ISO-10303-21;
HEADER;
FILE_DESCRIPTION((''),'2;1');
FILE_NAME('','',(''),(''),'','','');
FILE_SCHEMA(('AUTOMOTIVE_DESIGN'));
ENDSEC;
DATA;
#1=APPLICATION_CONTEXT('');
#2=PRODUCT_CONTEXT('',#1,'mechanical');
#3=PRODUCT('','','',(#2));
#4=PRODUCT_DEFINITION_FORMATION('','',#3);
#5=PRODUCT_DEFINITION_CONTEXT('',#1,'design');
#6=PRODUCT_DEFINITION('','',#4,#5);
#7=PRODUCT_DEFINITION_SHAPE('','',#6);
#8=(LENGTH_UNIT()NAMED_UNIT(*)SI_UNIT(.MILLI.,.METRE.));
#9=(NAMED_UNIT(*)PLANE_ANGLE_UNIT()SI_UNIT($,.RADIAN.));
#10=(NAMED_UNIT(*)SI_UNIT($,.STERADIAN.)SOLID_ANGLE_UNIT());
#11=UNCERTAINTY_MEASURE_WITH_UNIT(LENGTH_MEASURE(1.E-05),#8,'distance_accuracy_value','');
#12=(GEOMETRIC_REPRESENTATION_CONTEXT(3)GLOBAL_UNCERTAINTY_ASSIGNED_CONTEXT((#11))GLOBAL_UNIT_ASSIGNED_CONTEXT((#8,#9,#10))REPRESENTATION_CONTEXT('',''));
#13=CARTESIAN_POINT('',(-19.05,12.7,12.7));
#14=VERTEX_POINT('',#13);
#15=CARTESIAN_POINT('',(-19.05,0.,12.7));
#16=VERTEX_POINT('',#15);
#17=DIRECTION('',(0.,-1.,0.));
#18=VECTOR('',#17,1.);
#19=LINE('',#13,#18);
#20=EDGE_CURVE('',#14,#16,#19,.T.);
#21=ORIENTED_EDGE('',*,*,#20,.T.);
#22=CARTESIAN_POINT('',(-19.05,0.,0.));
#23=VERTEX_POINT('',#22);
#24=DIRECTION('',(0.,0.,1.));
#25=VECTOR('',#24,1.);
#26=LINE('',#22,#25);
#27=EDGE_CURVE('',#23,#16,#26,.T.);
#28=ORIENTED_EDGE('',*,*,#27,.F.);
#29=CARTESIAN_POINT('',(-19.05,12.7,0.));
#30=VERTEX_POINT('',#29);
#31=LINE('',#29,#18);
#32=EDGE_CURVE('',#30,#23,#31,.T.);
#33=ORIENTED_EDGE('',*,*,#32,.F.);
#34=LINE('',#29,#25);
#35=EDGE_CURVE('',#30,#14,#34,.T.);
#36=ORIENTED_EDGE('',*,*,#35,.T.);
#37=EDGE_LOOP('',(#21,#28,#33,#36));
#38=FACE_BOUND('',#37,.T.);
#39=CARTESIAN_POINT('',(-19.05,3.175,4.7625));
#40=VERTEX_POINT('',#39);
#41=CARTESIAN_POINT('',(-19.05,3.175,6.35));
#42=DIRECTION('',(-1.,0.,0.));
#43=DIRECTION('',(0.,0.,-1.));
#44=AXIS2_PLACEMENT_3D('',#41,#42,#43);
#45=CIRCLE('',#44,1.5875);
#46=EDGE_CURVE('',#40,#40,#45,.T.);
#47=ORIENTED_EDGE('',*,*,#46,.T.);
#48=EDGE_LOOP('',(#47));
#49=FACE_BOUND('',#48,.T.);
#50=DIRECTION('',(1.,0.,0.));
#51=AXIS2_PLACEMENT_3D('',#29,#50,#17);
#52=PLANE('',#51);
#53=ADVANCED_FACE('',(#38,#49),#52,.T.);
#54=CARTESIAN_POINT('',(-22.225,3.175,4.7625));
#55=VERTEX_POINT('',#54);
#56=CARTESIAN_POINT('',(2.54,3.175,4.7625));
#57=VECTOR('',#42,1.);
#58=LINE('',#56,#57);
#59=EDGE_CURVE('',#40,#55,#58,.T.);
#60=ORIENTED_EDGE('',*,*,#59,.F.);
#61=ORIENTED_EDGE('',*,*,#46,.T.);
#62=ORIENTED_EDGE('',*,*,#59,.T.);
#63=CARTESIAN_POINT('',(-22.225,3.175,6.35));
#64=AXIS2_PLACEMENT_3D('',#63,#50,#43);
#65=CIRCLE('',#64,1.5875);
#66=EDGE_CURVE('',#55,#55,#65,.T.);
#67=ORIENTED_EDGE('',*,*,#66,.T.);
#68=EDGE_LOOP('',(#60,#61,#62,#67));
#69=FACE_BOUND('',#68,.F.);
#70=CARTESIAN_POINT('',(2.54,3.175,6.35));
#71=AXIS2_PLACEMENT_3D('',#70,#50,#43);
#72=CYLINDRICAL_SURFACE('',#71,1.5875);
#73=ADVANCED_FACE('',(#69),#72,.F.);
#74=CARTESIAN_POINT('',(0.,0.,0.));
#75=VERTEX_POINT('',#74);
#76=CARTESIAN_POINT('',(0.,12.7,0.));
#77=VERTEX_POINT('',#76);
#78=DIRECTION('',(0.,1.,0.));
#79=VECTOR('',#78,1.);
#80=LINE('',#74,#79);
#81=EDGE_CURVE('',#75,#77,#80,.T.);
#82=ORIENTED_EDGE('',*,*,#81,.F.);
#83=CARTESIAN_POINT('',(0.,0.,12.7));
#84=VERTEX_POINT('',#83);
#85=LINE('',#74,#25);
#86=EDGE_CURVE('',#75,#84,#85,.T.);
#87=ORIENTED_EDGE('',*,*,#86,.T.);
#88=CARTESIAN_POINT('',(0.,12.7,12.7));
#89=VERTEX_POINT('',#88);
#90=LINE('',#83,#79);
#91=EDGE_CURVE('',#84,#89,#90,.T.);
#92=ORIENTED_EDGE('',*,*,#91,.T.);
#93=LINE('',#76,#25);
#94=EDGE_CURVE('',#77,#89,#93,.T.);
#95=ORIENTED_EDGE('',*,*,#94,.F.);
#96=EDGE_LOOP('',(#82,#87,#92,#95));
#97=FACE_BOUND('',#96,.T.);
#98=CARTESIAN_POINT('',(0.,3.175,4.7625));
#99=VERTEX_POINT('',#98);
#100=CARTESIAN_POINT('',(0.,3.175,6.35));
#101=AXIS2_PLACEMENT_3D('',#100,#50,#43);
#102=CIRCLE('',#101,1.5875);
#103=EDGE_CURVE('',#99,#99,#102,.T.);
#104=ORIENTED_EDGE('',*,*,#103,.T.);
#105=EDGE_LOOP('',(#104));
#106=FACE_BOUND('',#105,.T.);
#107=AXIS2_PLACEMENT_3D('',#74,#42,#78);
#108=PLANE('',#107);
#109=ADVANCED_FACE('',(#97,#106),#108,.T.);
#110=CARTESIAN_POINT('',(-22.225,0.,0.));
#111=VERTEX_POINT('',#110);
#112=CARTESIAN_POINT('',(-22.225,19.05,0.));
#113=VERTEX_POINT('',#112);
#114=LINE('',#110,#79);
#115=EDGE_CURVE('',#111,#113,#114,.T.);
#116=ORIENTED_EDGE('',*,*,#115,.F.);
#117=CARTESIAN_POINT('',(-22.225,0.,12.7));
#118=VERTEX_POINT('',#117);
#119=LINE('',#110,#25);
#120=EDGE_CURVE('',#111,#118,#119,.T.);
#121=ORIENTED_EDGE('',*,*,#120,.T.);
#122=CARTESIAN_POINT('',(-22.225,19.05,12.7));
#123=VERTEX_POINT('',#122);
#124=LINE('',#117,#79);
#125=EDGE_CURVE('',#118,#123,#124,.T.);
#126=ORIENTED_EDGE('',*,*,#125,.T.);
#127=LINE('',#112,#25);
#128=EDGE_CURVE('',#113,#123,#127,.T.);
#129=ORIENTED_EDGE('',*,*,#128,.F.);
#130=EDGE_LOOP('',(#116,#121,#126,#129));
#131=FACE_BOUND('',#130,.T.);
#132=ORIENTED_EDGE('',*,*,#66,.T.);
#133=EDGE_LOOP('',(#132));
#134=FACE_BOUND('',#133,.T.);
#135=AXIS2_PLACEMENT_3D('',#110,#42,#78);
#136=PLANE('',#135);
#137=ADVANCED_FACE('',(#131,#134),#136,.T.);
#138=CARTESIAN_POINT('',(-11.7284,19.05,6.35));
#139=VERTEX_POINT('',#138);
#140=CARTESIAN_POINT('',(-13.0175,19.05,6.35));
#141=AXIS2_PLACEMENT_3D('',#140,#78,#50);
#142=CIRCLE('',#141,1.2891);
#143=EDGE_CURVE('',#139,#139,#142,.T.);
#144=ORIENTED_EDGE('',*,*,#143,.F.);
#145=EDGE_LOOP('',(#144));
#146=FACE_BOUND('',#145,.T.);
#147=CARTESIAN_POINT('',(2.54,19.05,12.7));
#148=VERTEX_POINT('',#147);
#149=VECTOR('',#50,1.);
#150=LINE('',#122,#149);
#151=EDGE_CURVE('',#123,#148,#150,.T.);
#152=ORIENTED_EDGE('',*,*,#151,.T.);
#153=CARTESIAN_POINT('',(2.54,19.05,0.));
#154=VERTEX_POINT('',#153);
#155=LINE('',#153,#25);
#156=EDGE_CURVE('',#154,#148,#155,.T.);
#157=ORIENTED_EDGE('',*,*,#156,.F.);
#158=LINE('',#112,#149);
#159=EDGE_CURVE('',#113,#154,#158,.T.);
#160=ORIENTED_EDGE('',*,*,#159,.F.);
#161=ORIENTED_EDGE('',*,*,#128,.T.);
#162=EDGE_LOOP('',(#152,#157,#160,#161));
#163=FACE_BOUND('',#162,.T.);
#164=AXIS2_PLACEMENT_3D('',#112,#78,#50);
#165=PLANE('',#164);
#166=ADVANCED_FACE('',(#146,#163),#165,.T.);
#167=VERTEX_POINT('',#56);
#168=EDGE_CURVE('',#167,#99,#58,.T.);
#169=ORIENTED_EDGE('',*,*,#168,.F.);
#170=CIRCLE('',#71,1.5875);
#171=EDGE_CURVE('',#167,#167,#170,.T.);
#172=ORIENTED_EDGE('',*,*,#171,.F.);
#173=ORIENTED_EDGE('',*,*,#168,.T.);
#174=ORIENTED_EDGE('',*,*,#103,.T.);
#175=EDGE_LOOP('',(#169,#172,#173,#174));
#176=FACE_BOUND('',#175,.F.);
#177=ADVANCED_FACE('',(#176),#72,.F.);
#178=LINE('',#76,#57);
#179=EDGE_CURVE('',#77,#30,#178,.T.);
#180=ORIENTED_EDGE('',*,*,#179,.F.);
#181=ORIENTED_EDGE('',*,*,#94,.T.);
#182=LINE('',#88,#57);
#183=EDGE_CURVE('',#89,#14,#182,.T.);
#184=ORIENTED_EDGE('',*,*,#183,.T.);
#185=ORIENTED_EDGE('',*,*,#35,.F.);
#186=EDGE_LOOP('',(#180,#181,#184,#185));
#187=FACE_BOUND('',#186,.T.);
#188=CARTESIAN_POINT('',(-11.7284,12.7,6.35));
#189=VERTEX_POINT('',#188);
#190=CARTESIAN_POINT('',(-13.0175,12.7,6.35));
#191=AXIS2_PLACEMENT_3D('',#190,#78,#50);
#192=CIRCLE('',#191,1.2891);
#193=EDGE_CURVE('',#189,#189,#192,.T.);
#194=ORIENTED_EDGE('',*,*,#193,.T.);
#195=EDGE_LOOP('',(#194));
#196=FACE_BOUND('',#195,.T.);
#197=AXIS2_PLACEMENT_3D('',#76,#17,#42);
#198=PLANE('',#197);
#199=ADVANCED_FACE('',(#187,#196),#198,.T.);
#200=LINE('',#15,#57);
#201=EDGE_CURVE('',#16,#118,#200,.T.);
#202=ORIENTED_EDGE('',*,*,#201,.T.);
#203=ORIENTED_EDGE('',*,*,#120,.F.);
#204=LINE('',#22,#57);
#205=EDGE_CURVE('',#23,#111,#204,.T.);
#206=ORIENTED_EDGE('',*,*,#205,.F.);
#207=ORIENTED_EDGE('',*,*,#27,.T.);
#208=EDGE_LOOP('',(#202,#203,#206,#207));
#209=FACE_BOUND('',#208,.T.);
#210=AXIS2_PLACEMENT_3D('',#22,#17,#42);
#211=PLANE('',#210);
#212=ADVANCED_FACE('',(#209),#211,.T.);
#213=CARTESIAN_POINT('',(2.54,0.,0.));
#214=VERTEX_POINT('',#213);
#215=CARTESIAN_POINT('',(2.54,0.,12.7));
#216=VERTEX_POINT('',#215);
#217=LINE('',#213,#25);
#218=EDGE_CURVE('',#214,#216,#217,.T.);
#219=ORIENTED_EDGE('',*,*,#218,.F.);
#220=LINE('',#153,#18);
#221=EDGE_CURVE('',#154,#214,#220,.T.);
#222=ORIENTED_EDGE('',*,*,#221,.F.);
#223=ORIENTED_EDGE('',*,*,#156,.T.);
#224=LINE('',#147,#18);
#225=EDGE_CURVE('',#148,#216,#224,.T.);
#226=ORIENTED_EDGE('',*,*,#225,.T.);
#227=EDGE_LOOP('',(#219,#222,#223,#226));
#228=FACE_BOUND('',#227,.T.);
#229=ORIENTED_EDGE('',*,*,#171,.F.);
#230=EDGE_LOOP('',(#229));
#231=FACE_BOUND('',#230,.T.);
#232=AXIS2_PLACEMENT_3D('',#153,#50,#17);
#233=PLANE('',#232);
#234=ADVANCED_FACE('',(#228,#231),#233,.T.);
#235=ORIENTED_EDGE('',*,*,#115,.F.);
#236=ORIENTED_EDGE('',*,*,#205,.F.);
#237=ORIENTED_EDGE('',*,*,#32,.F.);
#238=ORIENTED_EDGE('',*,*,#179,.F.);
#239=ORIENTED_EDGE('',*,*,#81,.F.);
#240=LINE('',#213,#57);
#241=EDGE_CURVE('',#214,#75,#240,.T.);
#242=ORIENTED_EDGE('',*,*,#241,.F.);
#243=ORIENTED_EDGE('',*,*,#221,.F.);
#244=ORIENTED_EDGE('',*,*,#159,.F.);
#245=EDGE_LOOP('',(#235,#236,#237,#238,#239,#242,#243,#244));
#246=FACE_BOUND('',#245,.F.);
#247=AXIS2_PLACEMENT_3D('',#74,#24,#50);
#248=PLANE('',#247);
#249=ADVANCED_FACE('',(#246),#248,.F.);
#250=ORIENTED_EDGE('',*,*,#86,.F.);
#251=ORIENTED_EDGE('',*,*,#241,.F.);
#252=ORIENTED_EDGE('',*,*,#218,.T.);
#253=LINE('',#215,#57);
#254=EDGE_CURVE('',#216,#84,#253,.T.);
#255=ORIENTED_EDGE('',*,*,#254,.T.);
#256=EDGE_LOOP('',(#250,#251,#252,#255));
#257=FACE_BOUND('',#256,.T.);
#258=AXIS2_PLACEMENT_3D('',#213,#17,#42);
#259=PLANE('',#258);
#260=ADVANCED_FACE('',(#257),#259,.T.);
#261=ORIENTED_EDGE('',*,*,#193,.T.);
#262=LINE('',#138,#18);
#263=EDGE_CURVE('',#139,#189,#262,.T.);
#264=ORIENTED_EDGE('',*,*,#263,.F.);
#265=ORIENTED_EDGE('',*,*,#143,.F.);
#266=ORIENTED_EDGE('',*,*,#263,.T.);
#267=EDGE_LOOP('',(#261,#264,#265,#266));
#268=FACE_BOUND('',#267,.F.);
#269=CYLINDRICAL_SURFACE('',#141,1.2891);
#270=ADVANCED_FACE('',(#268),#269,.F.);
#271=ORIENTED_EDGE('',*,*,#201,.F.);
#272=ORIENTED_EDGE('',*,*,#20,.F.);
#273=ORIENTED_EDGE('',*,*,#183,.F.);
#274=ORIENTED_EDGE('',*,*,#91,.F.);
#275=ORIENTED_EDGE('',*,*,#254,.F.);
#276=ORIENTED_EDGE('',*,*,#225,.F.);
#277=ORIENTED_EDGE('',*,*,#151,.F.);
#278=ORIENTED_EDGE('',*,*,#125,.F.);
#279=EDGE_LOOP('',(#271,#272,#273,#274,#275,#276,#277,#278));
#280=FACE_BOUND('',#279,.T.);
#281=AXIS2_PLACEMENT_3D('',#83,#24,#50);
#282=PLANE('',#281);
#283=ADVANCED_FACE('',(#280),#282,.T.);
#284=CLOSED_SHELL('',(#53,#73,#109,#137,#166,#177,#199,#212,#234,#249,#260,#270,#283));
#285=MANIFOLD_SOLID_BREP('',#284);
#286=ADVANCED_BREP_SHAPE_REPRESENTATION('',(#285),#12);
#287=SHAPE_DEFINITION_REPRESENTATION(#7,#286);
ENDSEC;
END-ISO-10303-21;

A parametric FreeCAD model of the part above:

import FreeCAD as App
import Part
import Sketcher

V = App.Vector
Q = App.Units.Quantity

doc = App.newDocument("Part")
body = doc.addObject("PartDesign::Body", "Body")

sketch1 = doc.addObject("Sketcher::SketchObject", "Sketch")
body.addObject(sketch1)
sketch1.AttachmentSupport = (doc.XY_Plane, [""])
sketch1.MapMode = "FlatFace"
sketch1.addGeometry([
    Part.LineSegment(V(0, 12.7, 0), V(0, 0, 0)),
    Part.LineSegment(V(0, 0, 0), V(2.5, 0, 0)),
    Part.LineSegment(V(2.5, 0, 0), V(2.5, 19.1, 0)),
    Part.LineSegment(V(2.5, 19.1, 0), V(-22.2, 19.1, 0)),
    Part.LineSegment(V(-22.2, 19.1, 0), V(-22.2, 0, 0)),
    Part.LineSegment(V(-22.2, 0, 0), V(-19.1, 0, 0)),
    Part.LineSegment(V(-19.1, 0, 0), V(-19.1, 12.7, 0)),
    Part.LineSegment(V(-19.1, 12.7, 0), V(0, 12.7, 0)),
], False)
sketch1.addConstraint([
    Sketcher.Constraint("Coincident", 0, 2, 1, 1),
    Sketcher.Constraint("Coincident", 1, 2, 2, 1),
    Sketcher.Constraint("Coincident", 2, 2, 3, 1),
    Sketcher.Constraint("Coincident", 3, 2, 4, 1),
    Sketcher.Constraint("Coincident", 4, 2, 5, 1),
    Sketcher.Constraint("Coincident", 5, 2, 6, 1),
    Sketcher.Constraint("Coincident", 6, 2, 7, 1),
    Sketcher.Constraint("Coincident", 7, 2, 0, 1),
    Sketcher.Constraint("Vertical", 0),
    Sketcher.Constraint("Horizontal", 1),
    Sketcher.Constraint("Vertical", 2),
    Sketcher.Constraint("Horizontal", 3),
    Sketcher.Constraint("Vertical", 4),
    Sketcher.Constraint("Horizontal", 5),
    Sketcher.Constraint("Vertical", 6),
    Sketcher.Constraint("Horizontal", 7),
    Sketcher.Constraint("Coincident", 0, 2, -1, 1),
    Sketcher.Constraint("PointOnObject", 4, 2, -1),
    Sketcher.Constraint("Equal", 7, 2),
    Sketcher.Constraint("DistanceY", 0, 2, 0, 1, Q("0.5 in")),
    Sketcher.Constraint("DistanceX", 7, 1, 7, 2, Q("0.75 in")),
    Sketcher.Constraint("DistanceX", 3, 2, 3, 1, Q("0.975 in")),
    Sketcher.Constraint("DistanceX", 5, 1, 5, 2, Q("0.125 in")),
])
pad1 = doc.addObject("PartDesign::Pad", "Pad")
body.addObject(pad1)
pad1.Profile = sketch1
pad1.Length = Q("0.5 in")

sketch2 = doc.addObject("Sketcher::SketchObject", "Sketch001")
body.addObject(sketch2)
sketch2.AttachmentSupport = (doc.XZ_Plane, [""])
sketch2.MapMode = "FlatFace"
sketch2.AttachmentOffset = App.Placement(V(0, 0, -0.75 * 25.4), App.Rotation())
sketch2.addGeometry(Part.Circle(V(-13, 6.3, 0), V(0, 0, 1), 1.3), False)
sketch2.addConstraint([
    Sketcher.Constraint("Diameter", 0, Q("0.1015 in")),
    Sketcher.Constraint("DistanceY", -1, 1, 0, 3, Q("0.25 in")),
    Sketcher.Constraint("DistanceX", 0, 3, -1, 1, Q("0.5125 in")),
])
pocket1 = doc.addObject("PartDesign::Pocket", "Pocket")
body.addObject(pocket1)
pocket1.Profile = sketch2
pocket1.Length = Q("1 in")
pocket1.Reversed = True

sketch3 = doc.addObject("Sketcher::SketchObject", "Sketch002")
body.addObject(sketch3)
sketch3.AttachmentSupport = (doc.YZ_Plane, [""])
sketch3.MapMode = "FlatFace"
sketch3.AttachmentOffset = App.Placement(V(0, 0, 0.1 * 25.4), App.Rotation())
sketch3.addGeometry(Part.Circle(V(3.2, 6.3, 0), V(0, 0, 1), 1.6), False)
sketch3.addConstraint([
    Sketcher.Constraint("Diameter", 0, Q("0.125 in")),
    Sketcher.Constraint("DistanceX", -1, 1, 0, 3, Q("0.125 in")),
    Sketcher.Constraint("DistanceY", -1, 1, 0, 3, Q("0.25 in")),
])
pocket2 = doc.addObject("PartDesign::Pocket", "Pocket001")
body.addObject(pocket2)
pocket2.Profile = sketch3
pocket2.Length = Q("1 in")

doc.recompute()
